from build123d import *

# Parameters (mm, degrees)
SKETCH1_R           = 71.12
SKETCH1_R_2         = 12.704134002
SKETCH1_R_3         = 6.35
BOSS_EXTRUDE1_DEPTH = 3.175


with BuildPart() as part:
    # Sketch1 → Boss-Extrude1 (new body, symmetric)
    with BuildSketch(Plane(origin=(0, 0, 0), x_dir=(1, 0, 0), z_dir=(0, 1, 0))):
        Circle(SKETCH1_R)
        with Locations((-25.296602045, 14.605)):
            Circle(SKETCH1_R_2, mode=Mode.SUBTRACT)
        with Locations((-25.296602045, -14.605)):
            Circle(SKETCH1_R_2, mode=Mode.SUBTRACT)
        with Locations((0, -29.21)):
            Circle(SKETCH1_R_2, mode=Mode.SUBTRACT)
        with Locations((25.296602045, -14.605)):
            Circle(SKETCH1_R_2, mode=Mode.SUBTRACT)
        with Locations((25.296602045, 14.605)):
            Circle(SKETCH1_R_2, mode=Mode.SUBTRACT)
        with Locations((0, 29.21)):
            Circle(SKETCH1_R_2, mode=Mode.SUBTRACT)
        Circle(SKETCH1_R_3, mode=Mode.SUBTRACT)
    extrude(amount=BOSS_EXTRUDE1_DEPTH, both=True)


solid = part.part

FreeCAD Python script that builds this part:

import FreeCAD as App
import Part
import Sketcher
from FreeCAD import Vector
Q = App.Units.Quantity

doc = App.newDocument("Part")
body = doc.addObject("PartDesign::Body", "Body")

sketch1 = body.newObject("Sketcher::SketchObject", "Sketch")
sketch1.AttachmentSupport = (doc.getObject("XZ_Plane"), [""])
sketch1.MapMode = "FlatFace"
sketch1.addGeometry(Part.Circle(Vector(0, 0, 0), Vector(0, 0, 1), 71), False)
sketch1.addGeometry(Part.Circle(Vector(0, 29, 0), Vector(0, 0, 1), 13), False)
sketch1.addGeometry(Part.Circle(Vector(-25, 15, 0), Vector(0, 0, 1), 13), False)
sketch1.addGeometry(Part.Circle(Vector(25, 15, 0), Vector(0, 0, 1), 13), False)
sketch1.addGeometry(Part.Circle(Vector(-25, -15, 0), Vector(0, 0, 1), 13), False)
sketch1.addGeometry(Part.Circle(Vector(0, 0, 0), Vector(0, 0, 1), 6), False)
sketch1.addGeometry(Part.Circle(Vector(0, -29, 0), Vector(0, 0, 1), 13), False)
sketch1.addGeometry(Part.Circle(Vector(25, -15, 0), Vector(0, 0, 1), 13), False)
sketch1.addConstraint(Sketcher.Constraint("Coincident", 0, 3, -1, 1))
sketch1.addConstraint(Sketcher.Constraint("Coincident", 5, 3, -1, 1))
sketch1.addConstraint(Sketcher.Constraint("Equal", 1, 2))
sketch1.addConstraint(Sketcher.Constraint("Equal", 2, 3))
sketch1.addConstraint(Sketcher.Constraint("Equal", 3, 4))
sketch1.addConstraint(Sketcher.Constraint("Equal", 4, 6))
sketch1.addConstraint(Sketcher.Constraint("Equal", 6, 7))
sketch1.addConstraint(Sketcher.Constraint("Symmetric", 3, 3, 4, 3, -1, 1))
sketch1.addConstraint(Sketcher.Constraint("Symmetric", 1, 3, 6, 3, -1, 1))
sketch1.addConstraint(Sketcher.Constraint("Symmetric", 2, 3, 7, 3, -1, 1))
sketch1.addConstraint(Sketcher.Constraint("Symmetric", 2, 3, 3, 3, -2))
sketch1.addConstraint(Sketcher.Constraint("PointOnObject", 1, 3, -2))
sketch1.addConstraint(Sketcher.Constraint("Diameter", 0, Q("5.6 in")))
sketch1.addConstraint(Sketcher.Constraint("Diameter", 5, Q("0.5 in")))
sketch1.addConstraint(Sketcher.Constraint("DistanceY", -1, 1, 1, 3, Q("1.15 in")))
sketch1.addConstraint(Sketcher.Constraint("DistanceY", 4, 3, 2, 3, Q("1.15 in")))
sketch1.addConstraint(Sketcher.Constraint("Diameter", 1, 25.408268))
sketch1.addConstraint(Sketcher.Constraint("DistanceX", 2, 3, -1, 1, 25.296602))
pad1 = body.newObject("PartDesign::Pad", "Pad")
pad1.Profile = sketch1
pad1.Length = Q("0.25 in")
pad1.Midplane = True

doc.recompute()
